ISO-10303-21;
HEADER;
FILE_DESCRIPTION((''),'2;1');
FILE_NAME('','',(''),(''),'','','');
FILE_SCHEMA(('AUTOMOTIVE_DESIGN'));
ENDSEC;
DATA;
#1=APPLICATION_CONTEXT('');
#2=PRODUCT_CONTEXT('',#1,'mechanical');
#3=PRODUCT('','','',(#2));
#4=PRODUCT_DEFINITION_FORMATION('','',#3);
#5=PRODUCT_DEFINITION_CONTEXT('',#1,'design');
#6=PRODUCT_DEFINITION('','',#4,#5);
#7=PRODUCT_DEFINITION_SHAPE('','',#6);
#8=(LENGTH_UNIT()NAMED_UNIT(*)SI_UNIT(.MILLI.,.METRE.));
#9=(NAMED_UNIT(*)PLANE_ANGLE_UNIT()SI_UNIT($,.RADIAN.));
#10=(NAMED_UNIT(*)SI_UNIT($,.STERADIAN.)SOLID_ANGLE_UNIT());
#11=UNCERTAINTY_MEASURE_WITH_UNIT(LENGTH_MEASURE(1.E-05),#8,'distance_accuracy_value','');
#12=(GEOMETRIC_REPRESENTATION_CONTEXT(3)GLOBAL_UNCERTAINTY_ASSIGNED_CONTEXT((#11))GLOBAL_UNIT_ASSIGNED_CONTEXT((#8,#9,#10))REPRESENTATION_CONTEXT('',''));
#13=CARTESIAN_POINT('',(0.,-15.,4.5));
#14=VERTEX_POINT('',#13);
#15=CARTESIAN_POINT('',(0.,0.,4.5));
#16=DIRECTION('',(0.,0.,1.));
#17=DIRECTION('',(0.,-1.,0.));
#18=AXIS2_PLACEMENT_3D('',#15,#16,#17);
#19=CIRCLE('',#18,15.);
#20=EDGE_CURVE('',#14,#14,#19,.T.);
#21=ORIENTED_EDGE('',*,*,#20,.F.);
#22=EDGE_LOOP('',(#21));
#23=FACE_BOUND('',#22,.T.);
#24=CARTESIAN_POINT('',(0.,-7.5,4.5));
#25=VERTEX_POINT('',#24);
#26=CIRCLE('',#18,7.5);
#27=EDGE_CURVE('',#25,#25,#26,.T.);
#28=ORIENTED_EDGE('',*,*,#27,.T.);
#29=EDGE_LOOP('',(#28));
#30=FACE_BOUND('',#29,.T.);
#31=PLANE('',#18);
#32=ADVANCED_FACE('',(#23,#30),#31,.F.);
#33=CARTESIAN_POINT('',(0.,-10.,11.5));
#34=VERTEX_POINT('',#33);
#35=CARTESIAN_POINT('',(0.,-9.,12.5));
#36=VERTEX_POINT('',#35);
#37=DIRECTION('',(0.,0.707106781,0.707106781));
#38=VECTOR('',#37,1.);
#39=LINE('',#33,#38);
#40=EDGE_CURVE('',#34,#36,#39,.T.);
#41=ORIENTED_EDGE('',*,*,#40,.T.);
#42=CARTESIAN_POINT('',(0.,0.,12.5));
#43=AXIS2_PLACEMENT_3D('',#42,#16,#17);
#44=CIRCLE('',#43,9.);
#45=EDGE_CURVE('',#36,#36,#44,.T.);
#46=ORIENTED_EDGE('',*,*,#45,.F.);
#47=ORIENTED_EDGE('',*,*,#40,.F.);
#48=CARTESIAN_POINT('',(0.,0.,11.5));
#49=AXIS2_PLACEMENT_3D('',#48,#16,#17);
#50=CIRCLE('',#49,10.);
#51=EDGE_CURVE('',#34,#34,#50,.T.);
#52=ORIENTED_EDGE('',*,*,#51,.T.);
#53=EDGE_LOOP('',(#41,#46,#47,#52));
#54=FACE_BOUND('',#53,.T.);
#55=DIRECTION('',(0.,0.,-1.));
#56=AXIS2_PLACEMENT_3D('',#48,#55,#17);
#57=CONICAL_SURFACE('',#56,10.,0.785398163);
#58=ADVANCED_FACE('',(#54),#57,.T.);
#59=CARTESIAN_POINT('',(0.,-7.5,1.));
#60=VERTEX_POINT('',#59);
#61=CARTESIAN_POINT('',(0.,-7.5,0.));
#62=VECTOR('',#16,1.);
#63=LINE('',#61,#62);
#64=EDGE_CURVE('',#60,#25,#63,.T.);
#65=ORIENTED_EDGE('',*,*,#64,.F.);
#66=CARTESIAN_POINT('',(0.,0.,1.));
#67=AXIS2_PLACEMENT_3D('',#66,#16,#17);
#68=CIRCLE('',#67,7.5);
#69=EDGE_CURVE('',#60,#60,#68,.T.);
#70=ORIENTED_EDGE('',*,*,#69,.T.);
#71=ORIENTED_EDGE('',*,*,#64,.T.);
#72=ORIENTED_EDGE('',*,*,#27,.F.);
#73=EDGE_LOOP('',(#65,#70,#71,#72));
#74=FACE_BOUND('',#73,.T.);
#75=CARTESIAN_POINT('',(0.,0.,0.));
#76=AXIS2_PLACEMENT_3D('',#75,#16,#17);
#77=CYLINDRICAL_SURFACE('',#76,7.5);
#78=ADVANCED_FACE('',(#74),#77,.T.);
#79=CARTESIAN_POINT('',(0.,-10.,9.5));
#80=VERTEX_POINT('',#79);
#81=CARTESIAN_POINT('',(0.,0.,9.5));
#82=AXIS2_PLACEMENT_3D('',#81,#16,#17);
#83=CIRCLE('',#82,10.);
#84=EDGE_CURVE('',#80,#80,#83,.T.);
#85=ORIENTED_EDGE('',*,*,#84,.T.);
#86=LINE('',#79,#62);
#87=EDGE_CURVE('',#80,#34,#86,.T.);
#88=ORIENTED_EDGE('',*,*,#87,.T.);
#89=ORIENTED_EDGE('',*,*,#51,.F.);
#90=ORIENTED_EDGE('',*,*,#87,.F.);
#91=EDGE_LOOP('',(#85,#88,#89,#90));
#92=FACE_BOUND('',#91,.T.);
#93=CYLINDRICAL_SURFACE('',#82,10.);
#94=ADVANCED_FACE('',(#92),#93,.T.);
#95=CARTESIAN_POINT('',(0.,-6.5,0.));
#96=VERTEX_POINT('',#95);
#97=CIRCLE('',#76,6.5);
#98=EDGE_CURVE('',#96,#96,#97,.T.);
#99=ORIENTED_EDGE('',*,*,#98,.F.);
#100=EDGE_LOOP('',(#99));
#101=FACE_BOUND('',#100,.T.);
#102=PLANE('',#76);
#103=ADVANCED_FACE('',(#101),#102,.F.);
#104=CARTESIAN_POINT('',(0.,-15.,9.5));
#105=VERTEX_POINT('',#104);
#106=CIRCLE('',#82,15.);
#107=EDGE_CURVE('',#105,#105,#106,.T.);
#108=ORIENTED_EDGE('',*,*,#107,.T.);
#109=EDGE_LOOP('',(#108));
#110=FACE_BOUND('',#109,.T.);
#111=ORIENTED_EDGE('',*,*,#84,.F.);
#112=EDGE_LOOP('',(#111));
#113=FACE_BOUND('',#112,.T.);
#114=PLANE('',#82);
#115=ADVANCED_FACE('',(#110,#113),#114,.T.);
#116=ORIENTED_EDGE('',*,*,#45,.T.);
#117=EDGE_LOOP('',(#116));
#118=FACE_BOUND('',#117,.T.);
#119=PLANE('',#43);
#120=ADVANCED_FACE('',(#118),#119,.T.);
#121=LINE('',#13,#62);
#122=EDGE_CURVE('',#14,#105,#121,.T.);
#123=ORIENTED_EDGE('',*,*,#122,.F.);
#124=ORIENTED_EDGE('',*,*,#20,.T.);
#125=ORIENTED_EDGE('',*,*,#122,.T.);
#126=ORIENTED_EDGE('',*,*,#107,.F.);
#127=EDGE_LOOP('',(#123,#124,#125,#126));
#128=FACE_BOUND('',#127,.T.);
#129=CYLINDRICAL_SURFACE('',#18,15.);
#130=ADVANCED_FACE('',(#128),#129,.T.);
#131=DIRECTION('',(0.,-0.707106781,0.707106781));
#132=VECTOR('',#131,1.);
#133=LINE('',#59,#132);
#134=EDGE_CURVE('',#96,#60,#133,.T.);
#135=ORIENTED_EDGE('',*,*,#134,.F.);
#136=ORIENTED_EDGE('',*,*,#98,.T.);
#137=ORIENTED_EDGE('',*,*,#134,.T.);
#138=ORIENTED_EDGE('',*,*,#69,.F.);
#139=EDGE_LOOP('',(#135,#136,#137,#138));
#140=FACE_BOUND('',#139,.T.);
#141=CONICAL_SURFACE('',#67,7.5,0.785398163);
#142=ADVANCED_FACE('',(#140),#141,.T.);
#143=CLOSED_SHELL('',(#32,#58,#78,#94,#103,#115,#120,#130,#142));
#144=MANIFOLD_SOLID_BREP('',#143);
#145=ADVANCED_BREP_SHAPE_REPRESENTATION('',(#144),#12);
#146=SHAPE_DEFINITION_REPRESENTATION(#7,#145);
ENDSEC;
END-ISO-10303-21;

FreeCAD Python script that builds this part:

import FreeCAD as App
import Part
import Sketcher
from FreeCAD import Vector
Q = App.Units.Quantity


def edges_at(feature, points):
    """Names of the edges that pass closest to the given points."""
    edges = feature.Shape.Edges
    near = lambda p: min(range(len(edges)), key=lambda i: edges[i].distToShape(Part.Vertex(*p))[0])
    return sorted({f"Edge{near(p) + 1}" for p in points})

doc = App.newDocument("Part")
body = doc.addObject("PartDesign::Body", "Body")

sketch1 = body.newObject("Sketcher::SketchObject", "Sketch")
sketch1.AttachmentSupport = (doc.getObject("YZ_Plane"), [""])
sketch1.MapMode = "FlatFace"
sketch1.addGeometry([
    Part.LineSegment(Vector(-7.5, 0, 0), Vector(0, 0, 0)),
    Part.LineSegment(Vector(0, 0, 0), Vector(0, 12.5, 0)),
    Part.LineSegment(Vector(0, 12.5, 0), Vector(-10, 12.5, 0)),
    Part.LineSegment(Vector(-10, 12.5, 0), Vector(-10, 9.5, 0)),
    Part.LineSegment(Vector(-10, 9.5, 0), Vector(-15, 9.5, 0)),
    Part.LineSegment(Vector(-15, 9.5, 0), Vector(-15, 4.5, 0)),
    Part.LineSegment(Vector(-15, 4.5, 0), Vector(-7.5, 4.5, 0)),
    Part.LineSegment(Vector(-7.5, 4.5, 0), Vector(-7.5, 0, 0)),
], False)
sketch1.addConstraint([
    Sketcher.Constraint("Coincident", 0, 2, 1, 1),
    Sketcher.Constraint("Coincident", 1, 2, 2, 1),
    Sketcher.Constraint("Coincident", 2, 2, 3, 1),
    Sketcher.Constraint("Coincident", 3, 2, 4, 1),
    Sketcher.Constraint("Coincident", 4, 2, 5, 1),
    Sketcher.Constraint("Coincident", 5, 2, 6, 1),
    Sketcher.Constraint("Coincident", 6, 2, 7, 1),
    Sketcher.Constraint("Coincident", 7, 2, 0, 1),
    Sketcher.Constraint("Horizontal", 0),
    Sketcher.Constraint("Vertical", 1),
    Sketcher.Constraint("Horizontal", 2),
    Sketcher.Constraint("Vertical", 3),
    Sketcher.Constraint("Horizontal", 4),
    Sketcher.Constraint("Vertical", 5),
    Sketcher.Constraint("Horizontal", 6),
    Sketcher.Constraint("Vertical", 7),
    Sketcher.Constraint("Coincident", 0, 2, -1, 1),
    Sketcher.Constraint("Equal", 0, 6),
    Sketcher.Constraint("Equal", 4, 5),
    Sketcher.Constraint("DistanceX", 2, 2, 2, 1, Q("10 mm")),
    Sketcher.Constraint("DistanceX", 4, 2, 4, 1, Q("5 mm")),
    Sketcher.Constraint("DistanceY", 3, 2, 3, 1, Q("3 mm")),
    Sketcher.Constraint("DistanceY", 1, 1, 1, 2, Q("12.5 mm")),
])
revolution = body.newObject("PartDesign::Revolution", "Revolution")
revolution.Profile = sketch1
revolution.ReferenceAxis = (sketch1, ["V_Axis"])
revolution.Angle = 360
doc.recompute()

chamfer = body.newObject("PartDesign::Chamfer", "Chamfer")
chamfer.Base = (revolution, edges_at(revolution, [(0, 7.5, 0), (0, 10, 12.5)]))
chamfer.Size = 1

doc.recompute()
